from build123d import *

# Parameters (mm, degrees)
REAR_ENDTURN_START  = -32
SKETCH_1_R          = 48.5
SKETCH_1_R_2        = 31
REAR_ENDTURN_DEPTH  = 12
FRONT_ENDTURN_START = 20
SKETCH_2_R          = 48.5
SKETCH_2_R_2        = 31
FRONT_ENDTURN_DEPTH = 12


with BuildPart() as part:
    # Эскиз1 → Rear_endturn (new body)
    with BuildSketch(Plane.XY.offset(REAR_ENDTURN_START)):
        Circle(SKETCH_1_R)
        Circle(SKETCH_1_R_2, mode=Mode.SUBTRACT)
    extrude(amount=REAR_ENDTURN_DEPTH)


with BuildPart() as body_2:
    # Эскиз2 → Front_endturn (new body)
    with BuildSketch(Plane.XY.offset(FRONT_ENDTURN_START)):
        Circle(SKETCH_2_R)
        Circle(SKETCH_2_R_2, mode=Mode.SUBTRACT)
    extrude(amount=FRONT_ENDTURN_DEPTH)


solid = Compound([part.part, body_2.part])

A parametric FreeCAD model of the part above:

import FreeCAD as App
import Part
import Sketcher

doc = App.newDocument("Part")
body = doc.addObject("PartDesign::Body", "Body")

sketch1 = body.newObject("Sketcher::SketchObject", "Sketch")
sketch1.AttachmentSupport = (doc.getObject("XY_Plane"), [""])
sketch1.MapMode = "FlatFace"
sketch1.AttachmentOffset = App.Placement(App.Vector(0, 0, -32), App.Rotation())
sketch1.addGeometry([
    Part.Circle(App.Vector(0, 0, 0), App.Vector(0, 0, 1), 48),
    Part.Circle(App.Vector(0, 0, 0), App.Vector(0, 0, 1), 31),
], False)
sketch1.addConstraint([
    Sketcher.Constraint("Coincident", 0, 3, -1, 1),
    Sketcher.Constraint("Coincident", 1, 3, -1, 1),
    Sketcher.Constraint("Diameter", 0, 97.0),
    Sketcher.Constraint("Diameter", 1, 62.0),
])
pad1 = body.newObject("PartDesign::Pad", "Pad")
pad1.Profile = sketch1
pad1.Length = 12
body2 = doc.addObject("PartDesign::Body", "Body001")

sketch2 = body2.newObject("Sketcher::SketchObject", "Sketch001")
sketch2.AttachmentSupport = (doc.getObject("XY_Plane001"), [""])
sketch2.MapMode = "FlatFace"
sketch2.AttachmentOffset = App.Placement(App.Vector(0, 0, 20), App.Rotation())
sketch2.addGeometry([
    Part.Circle(App.Vector(0, 0, 0), App.Vector(0, 0, 1), 48),
    Part.Circle(App.Vector(0, 0, 0), App.Vector(0, 0, 1), 31),
], False)
sketch2.addConstraint([
    Sketcher.Constraint("Coincident", 0, 3, -1, 1),
    Sketcher.Constraint("Coincident", 1, 3, -1, 1),
    Sketcher.Constraint("Diameter", 0, 97.0),
    Sketcher.Constraint("Diameter", 1, 62.0),
])
pad2 = body2.newObject("PartDesign::Pad", "Pad001")
pad2.Profile = sketch2
pad2.Length = 12

doc.recompute()
